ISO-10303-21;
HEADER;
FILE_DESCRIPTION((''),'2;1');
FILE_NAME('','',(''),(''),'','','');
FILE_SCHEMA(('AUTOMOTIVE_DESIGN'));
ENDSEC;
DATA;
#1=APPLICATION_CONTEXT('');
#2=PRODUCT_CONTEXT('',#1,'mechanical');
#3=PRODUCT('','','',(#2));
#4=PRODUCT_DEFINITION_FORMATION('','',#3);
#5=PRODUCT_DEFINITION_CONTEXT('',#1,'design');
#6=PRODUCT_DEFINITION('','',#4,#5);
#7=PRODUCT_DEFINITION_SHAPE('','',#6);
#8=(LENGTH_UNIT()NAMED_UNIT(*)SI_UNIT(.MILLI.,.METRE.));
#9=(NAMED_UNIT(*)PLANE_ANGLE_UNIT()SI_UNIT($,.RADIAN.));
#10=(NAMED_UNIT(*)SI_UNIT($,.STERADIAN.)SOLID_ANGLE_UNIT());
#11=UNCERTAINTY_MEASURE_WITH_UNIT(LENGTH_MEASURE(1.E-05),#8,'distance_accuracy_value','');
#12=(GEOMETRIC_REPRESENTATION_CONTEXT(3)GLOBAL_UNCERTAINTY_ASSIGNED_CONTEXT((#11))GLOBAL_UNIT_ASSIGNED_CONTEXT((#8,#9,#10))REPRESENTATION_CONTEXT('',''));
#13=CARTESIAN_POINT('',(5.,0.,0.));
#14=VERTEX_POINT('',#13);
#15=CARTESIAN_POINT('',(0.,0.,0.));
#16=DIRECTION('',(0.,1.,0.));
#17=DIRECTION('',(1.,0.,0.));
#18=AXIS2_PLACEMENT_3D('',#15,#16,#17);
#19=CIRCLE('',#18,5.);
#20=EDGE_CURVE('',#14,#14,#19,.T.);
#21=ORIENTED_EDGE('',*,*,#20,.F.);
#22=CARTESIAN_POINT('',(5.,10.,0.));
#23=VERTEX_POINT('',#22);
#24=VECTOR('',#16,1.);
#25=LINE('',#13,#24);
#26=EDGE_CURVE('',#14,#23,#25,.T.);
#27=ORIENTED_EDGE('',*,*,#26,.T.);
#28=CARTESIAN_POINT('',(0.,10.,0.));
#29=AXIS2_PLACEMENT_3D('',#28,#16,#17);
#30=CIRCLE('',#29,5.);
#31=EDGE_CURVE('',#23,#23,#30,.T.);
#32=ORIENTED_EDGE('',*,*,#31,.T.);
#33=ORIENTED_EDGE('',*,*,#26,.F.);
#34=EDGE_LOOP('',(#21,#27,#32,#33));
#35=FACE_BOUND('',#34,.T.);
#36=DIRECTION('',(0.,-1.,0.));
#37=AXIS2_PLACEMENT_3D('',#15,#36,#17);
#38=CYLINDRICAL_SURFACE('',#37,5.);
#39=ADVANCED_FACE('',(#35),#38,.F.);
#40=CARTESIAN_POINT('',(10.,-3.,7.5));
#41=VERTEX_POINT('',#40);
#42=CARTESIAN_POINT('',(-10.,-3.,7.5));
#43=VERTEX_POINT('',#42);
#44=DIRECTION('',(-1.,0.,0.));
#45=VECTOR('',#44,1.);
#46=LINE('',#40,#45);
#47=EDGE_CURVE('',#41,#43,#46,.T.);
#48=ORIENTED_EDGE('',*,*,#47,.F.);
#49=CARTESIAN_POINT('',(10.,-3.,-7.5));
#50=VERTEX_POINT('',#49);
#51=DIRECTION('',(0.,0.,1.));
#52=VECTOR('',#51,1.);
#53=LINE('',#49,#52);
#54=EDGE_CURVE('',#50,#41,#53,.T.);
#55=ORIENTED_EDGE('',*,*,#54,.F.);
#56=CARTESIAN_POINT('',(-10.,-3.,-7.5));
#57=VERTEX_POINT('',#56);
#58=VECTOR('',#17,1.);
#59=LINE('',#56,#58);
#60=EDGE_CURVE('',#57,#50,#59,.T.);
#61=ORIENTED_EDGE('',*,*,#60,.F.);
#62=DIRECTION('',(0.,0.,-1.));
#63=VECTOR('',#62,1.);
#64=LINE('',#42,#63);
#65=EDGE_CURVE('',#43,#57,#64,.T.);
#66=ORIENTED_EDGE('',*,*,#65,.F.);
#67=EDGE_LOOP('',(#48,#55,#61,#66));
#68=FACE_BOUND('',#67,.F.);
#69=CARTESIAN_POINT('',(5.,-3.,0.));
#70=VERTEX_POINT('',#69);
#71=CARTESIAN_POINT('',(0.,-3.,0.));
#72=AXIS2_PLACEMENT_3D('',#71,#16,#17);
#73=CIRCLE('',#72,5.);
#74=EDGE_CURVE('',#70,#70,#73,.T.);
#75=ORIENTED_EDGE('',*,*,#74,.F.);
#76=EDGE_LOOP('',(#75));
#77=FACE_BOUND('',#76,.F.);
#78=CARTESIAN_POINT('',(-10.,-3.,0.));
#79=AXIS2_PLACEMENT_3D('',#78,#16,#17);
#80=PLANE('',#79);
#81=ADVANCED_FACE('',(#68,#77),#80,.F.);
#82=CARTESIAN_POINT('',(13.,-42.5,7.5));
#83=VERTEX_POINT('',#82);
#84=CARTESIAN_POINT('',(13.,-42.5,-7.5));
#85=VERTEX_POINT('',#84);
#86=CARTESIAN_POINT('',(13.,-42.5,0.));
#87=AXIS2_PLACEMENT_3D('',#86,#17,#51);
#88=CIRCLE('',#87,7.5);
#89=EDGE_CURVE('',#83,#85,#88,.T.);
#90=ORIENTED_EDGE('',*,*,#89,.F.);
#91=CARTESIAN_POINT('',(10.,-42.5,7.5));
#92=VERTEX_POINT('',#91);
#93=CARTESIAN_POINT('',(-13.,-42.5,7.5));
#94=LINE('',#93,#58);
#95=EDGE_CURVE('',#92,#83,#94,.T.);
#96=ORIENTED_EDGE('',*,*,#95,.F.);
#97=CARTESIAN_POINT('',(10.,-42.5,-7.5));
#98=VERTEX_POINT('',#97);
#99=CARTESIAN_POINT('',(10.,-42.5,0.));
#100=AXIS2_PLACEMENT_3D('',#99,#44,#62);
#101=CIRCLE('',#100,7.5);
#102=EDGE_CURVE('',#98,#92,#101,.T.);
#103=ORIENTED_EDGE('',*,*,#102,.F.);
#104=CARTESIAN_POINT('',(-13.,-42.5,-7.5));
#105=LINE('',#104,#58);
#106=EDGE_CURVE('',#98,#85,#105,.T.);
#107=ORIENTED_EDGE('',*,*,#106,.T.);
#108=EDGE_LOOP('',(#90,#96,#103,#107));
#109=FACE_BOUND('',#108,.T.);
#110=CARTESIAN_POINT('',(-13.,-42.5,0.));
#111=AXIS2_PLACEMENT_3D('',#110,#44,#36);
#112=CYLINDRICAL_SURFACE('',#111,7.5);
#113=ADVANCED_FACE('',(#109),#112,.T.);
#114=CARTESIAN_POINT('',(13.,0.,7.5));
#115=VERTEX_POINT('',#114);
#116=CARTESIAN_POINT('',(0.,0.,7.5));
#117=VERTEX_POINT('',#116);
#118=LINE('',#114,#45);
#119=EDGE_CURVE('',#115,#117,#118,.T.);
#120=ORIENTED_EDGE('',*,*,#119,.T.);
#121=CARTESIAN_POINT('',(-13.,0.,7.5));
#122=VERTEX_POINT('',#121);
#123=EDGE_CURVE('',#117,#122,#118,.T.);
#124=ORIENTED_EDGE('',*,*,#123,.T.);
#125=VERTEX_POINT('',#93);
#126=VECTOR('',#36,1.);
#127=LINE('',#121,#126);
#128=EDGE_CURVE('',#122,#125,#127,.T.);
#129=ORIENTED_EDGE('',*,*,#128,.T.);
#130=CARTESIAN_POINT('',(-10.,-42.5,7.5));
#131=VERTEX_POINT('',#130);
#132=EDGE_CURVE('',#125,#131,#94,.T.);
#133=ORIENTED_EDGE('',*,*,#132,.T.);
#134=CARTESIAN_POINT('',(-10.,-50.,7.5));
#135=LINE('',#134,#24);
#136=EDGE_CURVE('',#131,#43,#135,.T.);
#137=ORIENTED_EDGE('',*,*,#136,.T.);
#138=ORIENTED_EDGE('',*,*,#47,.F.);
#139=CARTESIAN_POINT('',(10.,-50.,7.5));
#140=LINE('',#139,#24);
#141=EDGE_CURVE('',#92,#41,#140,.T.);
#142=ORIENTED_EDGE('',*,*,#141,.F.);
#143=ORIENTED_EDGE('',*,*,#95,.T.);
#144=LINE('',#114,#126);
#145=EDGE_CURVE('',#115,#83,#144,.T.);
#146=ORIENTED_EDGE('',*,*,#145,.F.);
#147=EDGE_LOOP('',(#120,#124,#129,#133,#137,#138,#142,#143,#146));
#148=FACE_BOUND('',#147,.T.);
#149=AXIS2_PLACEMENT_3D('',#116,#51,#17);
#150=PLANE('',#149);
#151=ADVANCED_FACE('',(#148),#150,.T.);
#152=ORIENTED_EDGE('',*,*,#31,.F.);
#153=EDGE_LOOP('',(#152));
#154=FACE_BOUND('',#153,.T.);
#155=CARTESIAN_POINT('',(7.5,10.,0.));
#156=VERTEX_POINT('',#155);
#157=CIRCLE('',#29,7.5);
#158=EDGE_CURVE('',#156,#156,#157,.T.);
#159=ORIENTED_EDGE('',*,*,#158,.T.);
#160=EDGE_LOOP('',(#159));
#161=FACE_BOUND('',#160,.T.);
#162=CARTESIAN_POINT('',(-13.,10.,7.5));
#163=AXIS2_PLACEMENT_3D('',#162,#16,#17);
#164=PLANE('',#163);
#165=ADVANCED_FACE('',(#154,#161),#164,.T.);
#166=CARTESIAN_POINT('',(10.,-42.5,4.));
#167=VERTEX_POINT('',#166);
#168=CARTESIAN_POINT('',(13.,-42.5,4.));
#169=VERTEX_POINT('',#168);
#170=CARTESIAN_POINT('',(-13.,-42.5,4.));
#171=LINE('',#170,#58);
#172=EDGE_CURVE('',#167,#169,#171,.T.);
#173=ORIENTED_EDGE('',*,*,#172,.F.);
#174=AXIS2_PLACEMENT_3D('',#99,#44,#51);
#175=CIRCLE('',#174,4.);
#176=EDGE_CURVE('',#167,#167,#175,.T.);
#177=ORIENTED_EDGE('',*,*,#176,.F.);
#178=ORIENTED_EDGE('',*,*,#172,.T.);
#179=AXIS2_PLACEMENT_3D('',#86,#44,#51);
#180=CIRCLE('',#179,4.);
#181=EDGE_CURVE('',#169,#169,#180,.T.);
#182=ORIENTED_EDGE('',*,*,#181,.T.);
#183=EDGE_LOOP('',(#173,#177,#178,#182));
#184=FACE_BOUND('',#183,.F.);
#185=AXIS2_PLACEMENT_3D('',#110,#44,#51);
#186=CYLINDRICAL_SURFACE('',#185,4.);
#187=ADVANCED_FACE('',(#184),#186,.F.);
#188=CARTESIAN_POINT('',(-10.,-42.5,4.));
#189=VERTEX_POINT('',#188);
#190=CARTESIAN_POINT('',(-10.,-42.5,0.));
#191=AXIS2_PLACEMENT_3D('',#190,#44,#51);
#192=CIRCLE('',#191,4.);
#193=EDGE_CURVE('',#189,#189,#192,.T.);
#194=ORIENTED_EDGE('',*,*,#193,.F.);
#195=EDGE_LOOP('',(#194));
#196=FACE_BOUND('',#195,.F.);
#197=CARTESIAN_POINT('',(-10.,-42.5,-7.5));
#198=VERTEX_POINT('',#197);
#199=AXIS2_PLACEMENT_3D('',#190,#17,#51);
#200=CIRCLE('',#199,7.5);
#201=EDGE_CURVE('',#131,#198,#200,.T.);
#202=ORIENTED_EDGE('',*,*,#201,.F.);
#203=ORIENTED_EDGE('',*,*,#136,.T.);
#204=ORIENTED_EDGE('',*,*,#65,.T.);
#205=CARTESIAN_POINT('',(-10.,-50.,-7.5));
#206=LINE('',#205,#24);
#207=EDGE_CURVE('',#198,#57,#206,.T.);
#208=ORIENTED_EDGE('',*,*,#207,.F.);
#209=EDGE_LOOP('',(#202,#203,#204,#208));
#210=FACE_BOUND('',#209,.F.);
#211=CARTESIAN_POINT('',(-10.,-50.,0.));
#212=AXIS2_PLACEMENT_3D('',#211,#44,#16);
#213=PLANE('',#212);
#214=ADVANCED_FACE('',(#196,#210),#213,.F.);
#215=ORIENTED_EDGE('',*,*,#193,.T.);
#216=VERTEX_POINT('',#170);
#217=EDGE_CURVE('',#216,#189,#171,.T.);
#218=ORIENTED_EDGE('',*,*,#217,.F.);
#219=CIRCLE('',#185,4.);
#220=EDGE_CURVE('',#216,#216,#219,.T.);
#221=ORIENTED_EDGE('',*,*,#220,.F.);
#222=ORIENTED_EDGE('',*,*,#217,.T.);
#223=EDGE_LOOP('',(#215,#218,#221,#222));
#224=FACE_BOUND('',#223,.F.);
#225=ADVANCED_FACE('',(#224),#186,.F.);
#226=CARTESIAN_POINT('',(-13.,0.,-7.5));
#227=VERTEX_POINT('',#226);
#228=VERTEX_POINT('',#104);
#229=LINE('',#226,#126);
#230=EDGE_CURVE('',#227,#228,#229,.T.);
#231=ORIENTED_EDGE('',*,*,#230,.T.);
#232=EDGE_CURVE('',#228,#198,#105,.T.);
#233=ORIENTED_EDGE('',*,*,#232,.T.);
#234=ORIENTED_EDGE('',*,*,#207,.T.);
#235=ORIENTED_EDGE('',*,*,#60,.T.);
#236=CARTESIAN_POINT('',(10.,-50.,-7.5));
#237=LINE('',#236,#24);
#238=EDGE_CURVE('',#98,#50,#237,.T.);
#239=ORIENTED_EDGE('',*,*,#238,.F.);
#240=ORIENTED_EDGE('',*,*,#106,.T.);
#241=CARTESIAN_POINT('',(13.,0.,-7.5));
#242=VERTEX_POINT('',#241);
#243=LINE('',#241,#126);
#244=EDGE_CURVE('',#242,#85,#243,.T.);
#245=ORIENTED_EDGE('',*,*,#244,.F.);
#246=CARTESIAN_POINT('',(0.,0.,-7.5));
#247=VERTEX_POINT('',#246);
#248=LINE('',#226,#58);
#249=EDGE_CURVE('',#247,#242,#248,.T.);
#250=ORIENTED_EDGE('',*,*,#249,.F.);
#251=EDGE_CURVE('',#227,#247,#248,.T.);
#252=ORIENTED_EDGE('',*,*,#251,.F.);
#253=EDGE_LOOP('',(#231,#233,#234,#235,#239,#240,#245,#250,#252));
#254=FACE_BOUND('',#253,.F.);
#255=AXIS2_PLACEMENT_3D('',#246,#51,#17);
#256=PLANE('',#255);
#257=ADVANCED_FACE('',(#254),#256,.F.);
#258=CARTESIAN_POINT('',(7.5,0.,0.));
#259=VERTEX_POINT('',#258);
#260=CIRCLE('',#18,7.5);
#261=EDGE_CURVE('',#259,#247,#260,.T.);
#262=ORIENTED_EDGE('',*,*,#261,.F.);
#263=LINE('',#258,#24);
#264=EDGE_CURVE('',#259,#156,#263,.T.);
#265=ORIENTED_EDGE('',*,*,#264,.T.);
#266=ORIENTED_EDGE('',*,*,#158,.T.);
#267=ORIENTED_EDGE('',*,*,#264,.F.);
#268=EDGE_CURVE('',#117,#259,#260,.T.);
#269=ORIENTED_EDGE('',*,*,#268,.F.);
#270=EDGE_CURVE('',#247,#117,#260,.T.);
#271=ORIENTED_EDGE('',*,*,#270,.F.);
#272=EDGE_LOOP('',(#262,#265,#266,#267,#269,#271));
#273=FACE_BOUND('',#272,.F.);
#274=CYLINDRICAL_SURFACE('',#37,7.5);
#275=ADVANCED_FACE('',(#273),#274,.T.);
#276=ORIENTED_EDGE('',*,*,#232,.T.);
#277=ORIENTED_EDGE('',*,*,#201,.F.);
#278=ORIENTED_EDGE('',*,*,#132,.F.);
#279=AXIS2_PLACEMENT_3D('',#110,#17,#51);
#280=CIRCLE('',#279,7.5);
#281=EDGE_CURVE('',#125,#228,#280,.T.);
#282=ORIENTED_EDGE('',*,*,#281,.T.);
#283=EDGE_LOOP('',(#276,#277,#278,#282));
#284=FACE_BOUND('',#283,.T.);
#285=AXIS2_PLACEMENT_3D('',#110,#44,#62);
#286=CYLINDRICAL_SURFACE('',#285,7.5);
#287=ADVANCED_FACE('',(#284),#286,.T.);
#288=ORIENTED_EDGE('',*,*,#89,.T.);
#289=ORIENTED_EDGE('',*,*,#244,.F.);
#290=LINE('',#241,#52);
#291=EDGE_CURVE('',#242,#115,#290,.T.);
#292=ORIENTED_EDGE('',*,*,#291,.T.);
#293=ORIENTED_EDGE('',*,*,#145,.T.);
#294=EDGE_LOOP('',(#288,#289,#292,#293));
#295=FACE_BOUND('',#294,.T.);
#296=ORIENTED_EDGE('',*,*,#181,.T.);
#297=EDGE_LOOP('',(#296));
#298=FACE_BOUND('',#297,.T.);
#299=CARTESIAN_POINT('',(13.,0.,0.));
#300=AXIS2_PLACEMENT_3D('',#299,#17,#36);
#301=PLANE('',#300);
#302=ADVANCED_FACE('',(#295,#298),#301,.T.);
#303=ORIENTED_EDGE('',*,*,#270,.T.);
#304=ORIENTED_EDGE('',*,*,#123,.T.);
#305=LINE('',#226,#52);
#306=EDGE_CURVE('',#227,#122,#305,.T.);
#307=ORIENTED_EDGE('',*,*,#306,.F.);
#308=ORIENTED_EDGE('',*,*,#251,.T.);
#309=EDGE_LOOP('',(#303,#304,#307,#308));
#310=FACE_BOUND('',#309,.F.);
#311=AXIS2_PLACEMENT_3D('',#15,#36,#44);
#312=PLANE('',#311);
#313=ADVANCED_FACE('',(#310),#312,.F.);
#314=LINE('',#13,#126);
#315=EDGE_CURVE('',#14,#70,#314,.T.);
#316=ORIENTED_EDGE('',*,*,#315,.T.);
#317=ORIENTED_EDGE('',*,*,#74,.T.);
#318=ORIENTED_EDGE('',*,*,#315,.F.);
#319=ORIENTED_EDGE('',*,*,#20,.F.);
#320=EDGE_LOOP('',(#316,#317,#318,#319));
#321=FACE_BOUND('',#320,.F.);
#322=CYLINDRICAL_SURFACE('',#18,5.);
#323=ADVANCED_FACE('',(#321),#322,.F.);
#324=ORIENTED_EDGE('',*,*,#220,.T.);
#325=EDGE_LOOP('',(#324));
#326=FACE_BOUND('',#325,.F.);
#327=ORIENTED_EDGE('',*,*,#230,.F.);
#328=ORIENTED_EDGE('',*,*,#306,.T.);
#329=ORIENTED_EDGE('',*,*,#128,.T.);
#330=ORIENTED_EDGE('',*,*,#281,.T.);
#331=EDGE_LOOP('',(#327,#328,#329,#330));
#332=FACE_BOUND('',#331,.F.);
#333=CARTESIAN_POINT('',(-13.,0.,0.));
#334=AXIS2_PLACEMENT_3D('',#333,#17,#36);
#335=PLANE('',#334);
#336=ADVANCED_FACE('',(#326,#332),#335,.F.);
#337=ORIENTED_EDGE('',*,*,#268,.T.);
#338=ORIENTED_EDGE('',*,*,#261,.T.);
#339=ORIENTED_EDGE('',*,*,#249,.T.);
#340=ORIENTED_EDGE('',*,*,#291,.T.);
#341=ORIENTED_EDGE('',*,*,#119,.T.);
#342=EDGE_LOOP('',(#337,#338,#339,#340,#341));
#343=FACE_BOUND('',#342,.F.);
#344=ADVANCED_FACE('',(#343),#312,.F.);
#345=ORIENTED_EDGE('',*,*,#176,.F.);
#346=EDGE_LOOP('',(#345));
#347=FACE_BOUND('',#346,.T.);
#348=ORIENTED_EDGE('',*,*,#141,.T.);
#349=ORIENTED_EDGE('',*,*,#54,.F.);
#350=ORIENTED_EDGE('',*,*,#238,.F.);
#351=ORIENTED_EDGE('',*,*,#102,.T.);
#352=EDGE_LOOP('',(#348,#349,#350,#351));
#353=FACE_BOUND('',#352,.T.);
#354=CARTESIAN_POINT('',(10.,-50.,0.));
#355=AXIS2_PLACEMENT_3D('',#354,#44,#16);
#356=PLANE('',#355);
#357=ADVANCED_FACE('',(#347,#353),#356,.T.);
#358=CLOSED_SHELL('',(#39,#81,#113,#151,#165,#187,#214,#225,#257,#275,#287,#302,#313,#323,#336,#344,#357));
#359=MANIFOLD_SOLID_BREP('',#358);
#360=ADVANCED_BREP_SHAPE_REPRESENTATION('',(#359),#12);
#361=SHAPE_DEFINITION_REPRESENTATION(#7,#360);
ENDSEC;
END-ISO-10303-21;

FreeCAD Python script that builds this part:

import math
import FreeCAD as App
import Part
import Sketcher
from FreeCAD import Vector


def add_polygon(sketch, points):
    """Adds a closed chain of lines whose ends are joined by coincident constraints."""
    first, n = sketch.GeometryCount, len(points)
    for a, b in zip(points, points[1:] + points[:1]):
        sketch.addGeometry(Part.LineSegment(App.Vector(*a, 0), App.Vector(*b, 0)), False)
    for i in range(n):
        sketch.addConstraint(Sketcher.Constraint("Coincident", first + i, 2, first + (i + 1) % n, 1))

doc = App.newDocument("Part")
params = doc.addObject("Spreadsheet::Sheet", "Params")
for row, (alias, value) in enumerate([
    ("sketch1_width", "3 mm"),
    ("sketch1_height", "47 mm"),
    ("sketch1_height2", "50 mm"),
    ("pad1_length", "15 mm"),
    ("sketch2_diameter", "8 mm"),
    ("sketch2_radius", "7.5 mm"),
    ("sketch3_diameter", "10 mm"),
    ("sketch4_diameter", "15 mm"),
    ("sketch4_diameter2", "10 mm"),
    ("pad2_length", "10 mm"),
], start=1):
    params.set(f"A{row}", alias)
    params.set(f"B{row}", "=" + value)
    params.setAlias(f"B{row}", alias)

body = doc.addObject("PartDesign::Body", "Body")

# Sketch on XY plane
sketch1 = body.newObject("Sketcher::SketchObject", "Sketch")
sketch1.AttachmentSupport = (doc.getObject("XY_Plane"), [""])
sketch1.MapMode = "FlatFace"
add_polygon(sketch1, [(-10, -3), (10, -3), (10, -50), (13, -50), (13, 0), (-13, 0), (-13, -50), (-10, -50)])  # lines 0-7
sketch1.addConstraint(Sketcher.Constraint("Horizontal", 0))
sketch1.addConstraint(Sketcher.Constraint("Vertical", 1))
sketch1.addConstraint(Sketcher.Constraint("Horizontal", 2))
sketch1.addConstraint(Sketcher.Constraint("Vertical", 3))
sketch1.addConstraint(Sketcher.Constraint("Horizontal", 4))
sketch1.addConstraint(Sketcher.Constraint("Vertical", 5))
sketch1.addConstraint(Sketcher.Constraint("Horizontal", 6))
sketch1.addConstraint(Sketcher.Constraint("Vertical", 7))
sketch1.addConstraint(Sketcher.Constraint("Symmetric", 3, 2, 4, 2, -1, 1))
sketch1.addConstraint(Sketcher.Constraint("Symmetric", 1, 2, 6, 2, -2))
sketch1.addConstraint(Sketcher.Constraint("DistanceX", 2, 1, 2, 2, 3.0))
sketch1.addConstraint(Sketcher.Constraint("DistanceY", 1, 2, 1, 1, 47.0))
sketch1.addConstraint(Sketcher.Constraint("DistanceY", 3, 1, 3, 2, 50.0))
sketch1.addConstraint(Sketcher.Constraint("DistanceX", -1, 1, 2, 2, 13.0))
sketch1.setExpression("Constraints[18]", "Params.sketch1_width")
sketch1.setExpression("Constraints[19]", "Params.sketch1_height")
sketch1.setExpression("Constraints[20]", "Params.sketch1_height2")
pad1 = body.newObject("PartDesign::Pad", "Pad")
pad1.Profile = sketch1
pad1.setExpression("Length", "Params.pad1_length")
pad1.Midplane = True

# Sketch on YZ plane
sketch2 = body.newObject("Sketcher::SketchObject", "Sketch001")
sketch2.AttachmentSupport = (doc.getObject("YZ_Plane"), [""])
sketch2.MapMode = "FlatFace"
sketch2.AttachmentOffset = App.Placement(Vector(0, 0, -13), App.Rotation())
sketch2.addGeometry(Part.LineSegment(Vector(-42.5, -7.5, 0), Vector(-50, -7.5, 0)), False)
sketch2.addGeometry(Part.LineSegment(Vector(-50, -7.5, 0), Vector(-50, 0, 0)), False)
sketch2.addGeometry(Part.ArcOfCircle(Part.Circle(Vector(-42.5, 0, 0), Vector(0, 0, 1), 7.5), math.radians(180), math.radians(270)), False)
sketch2.addGeometry(Part.ArcOfCircle(Part.Circle(Vector(-42.5, 0, 0), Vector(0, 0, 1), 7.5), math.radians(90), math.radians(180)), False)
sketch2.addGeometry(Part.LineSegment(Vector(-50, 0, 0), Vector(-50, 7.5, 0)), False)
sketch2.addGeometry(Part.LineSegment(Vector(-50, 7.5, 0), Vector(-42.5, 7.5, 0)), False)
sketch2.addGeometry(Part.Circle(Vector(-42.5, 0, 0), Vector(0, 0, 1), 4), False)
sketch2.addConstraint(Sketcher.Constraint("Coincident", 0, 2, 1, 1))
sketch2.addConstraint(Sketcher.Constraint("Tangent", 1, 2, 2, 1))
sketch2.addConstraint(Sketcher.Constraint("Tangent", 2, 2, 0, 1))
sketch2.addConstraint(Sketcher.Constraint("Tangent", 3, 2, 4, 1))
sketch2.addConstraint(Sketcher.Constraint("Coincident", 4, 2, 5, 1))
sketch2.addConstraint(Sketcher.Constraint("Tangent", 5, 2, 3, 1))
sketch2.addConstraint(Sketcher.Constraint("Horizontal", 0))
sketch2.addConstraint(Sketcher.Constraint("Vertical", 1))
sketch2.addConstraint(Sketcher.Constraint("Vertical", 4))
sketch2.addConstraint(Sketcher.Constraint("Horizontal", 5))
sketch2.addConstraint(Sketcher.Constraint("Coincident", 3, 3, 2, 3))
sketch2.addConstraint(Sketcher.Constraint("Coincident", 6, 3, 2, 3))
sketch2.addConstraint(Sketcher.Constraint("Equal", 2, 3))
sketch2.addConstraint(Sketcher.Constraint("PointOnObject", 2, 3, -1))
sketch2.addConstraint(Sketcher.Constraint("Diameter", 6, 8.0))
sketch2.addConstraint(Sketcher.Constraint("Radius", 2, 7.5))
sketch2.addConstraint(Sketcher.Constraint("DistanceX", 0, 2, -1, 1, 50.0))
sketch2.setExpression("Constraints[14]", "Params.sketch2_diameter")
sketch2.setExpression("Constraints[15]", "Params.sketch2_radius")
pocket1 = body.newObject("PartDesign::Pocket", "Pocket")
pocket1.Profile = sketch2
pocket1.Type = "ThroughAll"
pocket1.Reversed = True

# Sketch on XZ plane
sketch3 = body.newObject("Sketcher::SketchObject", "Sketch002")
sketch3.AttachmentSupport = (doc.getObject("XZ_Plane"), [""])
sketch3.MapMode = "FlatFace"
sketch3.addGeometry(Part.Circle(Vector(0, 0, 0), Vector(0, 0, 1), 5), False)
sketch3.addConstraint(Sketcher.Constraint("Coincident", 0, 3, -1, 1))
sketch3.addConstraint(Sketcher.Constraint("Diameter", 0, 10.0))
sketch3.setExpression("Constraints[1]", "Params.sketch3_diameter")
pocket2 = body.newObject("PartDesign::Pocket", "Pocket001")
pocket2.Profile = sketch3
pocket2.Type = "ThroughAll"
pocket2.Reversed = True

# Sketch on XZ plane
sketch4 = body.newObject("Sketcher::SketchObject", "Sketch003")
sketch4.AttachmentSupport = (doc.getObject("XZ_Plane"), [""])
sketch4.MapMode = "FlatFace"
sketch4.addGeometry(Part.Circle(Vector(0, 0, 0), Vector(0, 0, 1), 8), False)
sketch4.addGeometry(Part.Circle(Vector(0, 0, 0), Vector(0, 0, 1), 5), False)
sketch4.addConstraint(Sketcher.Constraint("Coincident", 0, 3, -1, 1))
sketch4.addConstraint(Sketcher.Constraint("Coincident", 1, 3, -1, 1))
sketch4.addConstraint(Sketcher.Constraint("Diameter", 0, 15.0))
sketch4.addConstraint(Sketcher.Constraint("Diameter", 1, 10.0))
sketch4.setExpression("Constraints[2]", "Params.sketch4_diameter")
sketch4.setExpression("Constraints[3]", "Params.sketch4_diameter2")
pad2 = body.newObject("PartDesign::Pad", "Pad001")
pad2.Profile = sketch4
pad2.setExpression("Length", "Params.pad2_length")
pad2.Reversed = True

doc.recompute()
